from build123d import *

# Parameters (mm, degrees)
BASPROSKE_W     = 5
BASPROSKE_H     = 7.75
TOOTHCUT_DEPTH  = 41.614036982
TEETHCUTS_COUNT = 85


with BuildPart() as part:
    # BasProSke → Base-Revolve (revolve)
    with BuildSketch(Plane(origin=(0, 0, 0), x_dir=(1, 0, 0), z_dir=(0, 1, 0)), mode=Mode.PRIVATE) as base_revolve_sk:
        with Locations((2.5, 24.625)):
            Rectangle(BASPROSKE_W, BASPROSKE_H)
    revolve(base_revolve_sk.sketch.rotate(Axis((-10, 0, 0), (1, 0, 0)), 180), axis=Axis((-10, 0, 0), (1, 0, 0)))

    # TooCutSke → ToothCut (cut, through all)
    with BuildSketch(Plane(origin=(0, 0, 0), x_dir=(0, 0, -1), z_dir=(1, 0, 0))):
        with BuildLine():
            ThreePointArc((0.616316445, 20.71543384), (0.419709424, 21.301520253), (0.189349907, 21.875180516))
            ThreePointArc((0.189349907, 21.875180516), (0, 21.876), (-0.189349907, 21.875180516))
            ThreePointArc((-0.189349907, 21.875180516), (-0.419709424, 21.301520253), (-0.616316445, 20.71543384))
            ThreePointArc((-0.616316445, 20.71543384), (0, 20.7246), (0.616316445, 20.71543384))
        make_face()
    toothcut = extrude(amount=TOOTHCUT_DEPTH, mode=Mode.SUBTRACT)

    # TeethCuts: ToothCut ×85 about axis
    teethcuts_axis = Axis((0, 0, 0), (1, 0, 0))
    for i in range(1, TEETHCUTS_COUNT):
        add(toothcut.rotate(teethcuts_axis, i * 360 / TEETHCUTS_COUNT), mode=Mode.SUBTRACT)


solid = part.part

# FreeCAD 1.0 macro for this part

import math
import FreeCAD as App
import Part
import Sketcher

V = App.Vector

doc = App.newDocument("Part")
body = doc.addObject("PartDesign::Body", "Body")

# Sketch on XZ plane
sketch1 = doc.addObject("Sketcher::SketchObject", "Sketch")
body.addObject(sketch1)
sketch1.AttachmentSupport = (doc.XZ_Plane, [""])
sketch1.MapMode = "FlatFace"
sketch1.addGeometry([
    Part.LineSegment(V(0, -28, 0), V(0, -21, 0)),
    Part.LineSegment(V(0, -21, 0), V(5, -21, 0)),
    Part.LineSegment(V(5, -21, 0), V(5, -28, 0)),
    Part.LineSegment(V(5, -28, 0), V(0, -28, 0)),
], False)
sketch1.addConstraint([
    Sketcher.Constraint("Coincident", 0, 2, 1, 1),
    Sketcher.Constraint("Coincident", 1, 2, 2, 1),
    Sketcher.Constraint("Coincident", 2, 2, 3, 1),
    Sketcher.Constraint("Coincident", 3, 2, 0, 1),
    Sketcher.Constraint("Vertical", 0),
    Sketcher.Constraint("Horizontal", 1),
    Sketcher.Constraint("Vertical", 2),
    Sketcher.Constraint("Horizontal", 3),
    Sketcher.Constraint("PointOnObject", 0, 2, -2),
    Sketcher.Constraint("DistanceX", 1, 1, 1, 2, 5.0),
    Sketcher.Constraint("DistanceY", 0, 1, 0, 2, 7.75),
    Sketcher.Constraint("DistanceY", 2, 2, -1, 1, 28.5),
])
revolution = doc.addObject("PartDesign::Revolution", "Revolution")
body.addObject(revolution)
revolution.Profile = sketch1
revolution.ReferenceAxis = (sketch1, ["H_Axis"])
revolution.Angle = 360

# Sketch on YZ plane
sketch2 = doc.addObject("Sketcher::SketchObject", "Sketch001")
body.addObject(sketch2)
sketch2.AttachmentSupport = (doc.YZ_Plane, [""])
sketch2.MapMode = "FlatFace"
sketch2.addGeometry([
    Part.ArcOfCircle(Part.Circle(V(17.63, 9.55, 0), V(0, 0, 1), 10.62), math.radians(-73.12), math.radians(-66.45)),
    Part.ArcOfCircle(Part.Circle(V(0, 0, 0), V(0, 0, 1), 21.88), math.radians(-0.5), math.radians(0.5)),
    Part.ArcOfCircle(Part.Circle(V(17.63, -9.55, 0), V(0, 0, 1), 10.62), math.radians(66.45), math.radians(73.12)),
    Part.ArcOfCircle(Part.Circle(V(0, 0, 0), V(0, 0, 1), 20.72), math.radians(-1.7), math.radians(1.7)),
], False)
sketch2.addConstraint([
    Sketcher.Constraint("Coincident", 0, 2, 1, 1),
    Sketcher.Constraint("Coincident", 1, 2, 2, 1),
    Sketcher.Constraint("Coincident", 2, 2, 3, 2),
    Sketcher.Constraint("Coincident", 3, 1, 0, 1),
    Sketcher.Constraint("Coincident", 1, 3, -1, 1),
    Sketcher.Constraint("Coincident", 3, 3, -1, 1),
    Sketcher.Constraint("Equal", 0, 2),
    Sketcher.Constraint("Symmetric", 0, 3, 2, 3, -1),
    Sketcher.Constraint("Radius", 0, 10.625),
    Sketcher.Constraint("Radius", 3, 20.724599),
    Sketcher.Constraint("Radius", 1, 21.875997),
    Sketcher.Constraint("DistanceY", 0, 2, 1, 2, 0.3787),
    Sketcher.Constraint("DistanceY", 2, 2, 0, 3, 8.93473),
])
pocket1 = doc.addObject("PartDesign::Pocket", "Pocket")
body.addObject(pocket1)
pocket1.Profile = sketch2
pocket1.Type = "ThroughAll"
pocket1.Reversed = True
doc.recompute()

polarpattern = doc.addObject("PartDesign::PolarPattern", "PolarPattern")
body.addObject(polarpattern)
polarpattern.Originals = [pocket1]
polarpattern.Axis = (doc.X_Axis, [""])
polarpattern.Angle = 360
polarpattern.Occurrences = 85
body.Tip = polarpattern

doc.recompute()
